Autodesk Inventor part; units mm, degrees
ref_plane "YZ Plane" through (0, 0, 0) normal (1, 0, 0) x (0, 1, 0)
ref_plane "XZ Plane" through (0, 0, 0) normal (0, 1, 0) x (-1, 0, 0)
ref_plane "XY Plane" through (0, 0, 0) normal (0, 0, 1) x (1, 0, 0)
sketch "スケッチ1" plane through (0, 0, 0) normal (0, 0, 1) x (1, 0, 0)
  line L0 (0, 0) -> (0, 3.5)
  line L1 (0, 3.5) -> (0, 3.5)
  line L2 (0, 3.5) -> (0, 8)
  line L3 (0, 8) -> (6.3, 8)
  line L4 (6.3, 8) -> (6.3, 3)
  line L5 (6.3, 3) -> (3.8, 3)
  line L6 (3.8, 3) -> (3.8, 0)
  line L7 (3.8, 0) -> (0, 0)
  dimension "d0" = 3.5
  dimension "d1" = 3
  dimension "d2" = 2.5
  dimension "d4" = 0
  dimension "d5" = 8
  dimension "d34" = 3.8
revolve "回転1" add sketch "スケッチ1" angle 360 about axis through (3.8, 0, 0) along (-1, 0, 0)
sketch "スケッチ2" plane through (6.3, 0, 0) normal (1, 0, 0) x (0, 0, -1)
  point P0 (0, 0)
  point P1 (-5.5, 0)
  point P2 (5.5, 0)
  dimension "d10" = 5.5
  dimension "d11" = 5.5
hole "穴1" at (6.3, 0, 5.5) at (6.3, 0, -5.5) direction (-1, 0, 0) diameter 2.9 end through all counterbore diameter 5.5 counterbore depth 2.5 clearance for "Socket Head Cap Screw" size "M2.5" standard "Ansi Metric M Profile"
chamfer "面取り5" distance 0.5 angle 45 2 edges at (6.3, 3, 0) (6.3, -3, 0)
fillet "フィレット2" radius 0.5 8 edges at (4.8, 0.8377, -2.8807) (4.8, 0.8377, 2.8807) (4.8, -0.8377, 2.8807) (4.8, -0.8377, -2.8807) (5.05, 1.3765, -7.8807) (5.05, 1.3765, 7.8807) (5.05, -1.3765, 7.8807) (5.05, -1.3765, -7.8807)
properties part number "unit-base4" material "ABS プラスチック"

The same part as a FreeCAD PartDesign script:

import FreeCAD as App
import Part
import Sketcher
from FreeCAD import Vector
Q = App.Units.Quantity


def edges_at(feature, points):
    """Names of the edges that pass closest to the given points."""
    edges = feature.Shape.Edges
    near = lambda p: min(range(len(edges)), key=lambda i: edges[i].distToShape(Part.Vertex(*p))[0])
    return sorted({f"Edge{near(p) + 1}" for p in points})


def add_polygon(sketch, points):
    """Adds a closed chain of lines whose ends are joined by coincident constraints."""
    first, n = sketch.GeometryCount, len(points)
    for a, b in zip(points, points[1:] + points[:1]):
        sketch.addGeometry(Part.LineSegment(App.Vector(*a, 0), App.Vector(*b, 0)), False)
    for i in range(n):
        sketch.addConstraint(Sketcher.Constraint("Coincident", first + i, 2, first + (i + 1) % n, 1))

doc = App.newDocument("Part")
body = doc.addObject("PartDesign::Body", "Body")

# Sketch on XY plane
sketch1 = body.newObject("Sketcher::SketchObject", "Sketch")
sketch1.AttachmentSupport = (doc.getObject("XY_Plane"), [""])
sketch1.MapMode = "FlatFace"
add_polygon(sketch1, [(0, 8), (0, 0), (3.8, 0), (3.8, 3), (6.3, 3), (6.3, 8)])  # lines 0-5
sketch1.addConstraint(Sketcher.Constraint("Vertical", 0))
sketch1.addConstraint(Sketcher.Constraint("Horizontal", 1))
sketch1.addConstraint(Sketcher.Constraint("Vertical", 2))
sketch1.addConstraint(Sketcher.Constraint("Horizontal", 3))
sketch1.addConstraint(Sketcher.Constraint("Vertical", 4))
sketch1.addConstraint(Sketcher.Constraint("Horizontal", 5))
sketch1.addConstraint(Sketcher.Constraint("Coincident", 0, 2, -1, 1))
sketch1.addConstraint(Sketcher.Constraint("DistanceY", 0, 2, 0, 1, Q("8 mm")))
sketch1.addConstraint(Sketcher.Constraint("DistanceY", 2, 1, 2, 2, Q("3 mm")))
sketch1.addConstraint(Sketcher.Constraint("DistanceX", 1, 1, 1, 2, Q("3.8 mm")))
sketch1.addConstraint(Sketcher.Constraint("DistanceX", 3, 1, 3, 2, Q("2.5 mm")))
revolution = body.newObject("PartDesign::Revolution", "Revolution")
revolution.Profile = sketch1
revolution.ReferenceAxis = (sketch1, ["H_Axis"])
revolution.Angle = 360

# Sketch on YZ plane
sketch2 = body.newObject("Sketcher::SketchObject", "Sketch001")
sketch2.AttachmentSupport = (doc.getObject("YZ_Plane"), [""])
sketch2.MapMode = "FlatFace"
sketch2.AttachmentOffset = App.Placement(Vector(0, 0, 6.3), App.Rotation())
sketch2.addGeometry(Part.Circle(Vector(0, 5.5, 0), Vector(0, 0, 1), 1.4), False)
sketch2.addGeometry(Part.Circle(Vector(0, -5.5, 0), Vector(0, 0, 1), 1.4), False)
sketch2.addConstraint(Sketcher.Constraint("Equal", 0, 1))
sketch2.addConstraint(Sketcher.Constraint("Symmetric", 0, 3, 1, 3, -1, 1))
sketch2.addConstraint(Sketcher.Constraint("PointOnObject", 0, 3, -2))
sketch2.addConstraint(Sketcher.Constraint("Diameter", 0, Q("2.9 mm")))
sketch2.addConstraint(Sketcher.Constraint("DistanceY", 1, 3, 0, 3, Q("11 mm")))
doc.recompute()
hole = body.newObject("PartDesign::Hole", "Hole")
hole.Profile = sketch2
hole.ThreadType = "None"
hole.Diameter = 2.9
hole.DepthType = "ThroughAll"
hole.HoleCutType = "Counterbore"
hole.HoleCutDiameter = 5.5
hole.HoleCutDepth = 2.5
doc.recompute()

chamfer = body.newObject("PartDesign::Chamfer", "Chamfer")
chamfer.Base = (hole, edges_at(hole, [(6.3, 3, 0), (6.3, -3, 0)]))
chamfer.Size = 0.5
doc.recompute()

fillet = body.newObject("PartDesign::Fillet", "Fillet")
fillet.Base = (chamfer, edges_at(chamfer, [
    (4.8, 0.838, -2.881),
    (4.8, 0.838, 2.881),
    (4.8, -0.838, 2.881),
    (4.8, -0.838, -2.881),
    (5.05, 1.377, -7.881),
    (5.05, 1.377, 7.881),
    (5.05, -1.377, 7.881),
    (5.05, -1.377, -7.881),
]))
fillet.Radius = 0.5

doc.recompute()
